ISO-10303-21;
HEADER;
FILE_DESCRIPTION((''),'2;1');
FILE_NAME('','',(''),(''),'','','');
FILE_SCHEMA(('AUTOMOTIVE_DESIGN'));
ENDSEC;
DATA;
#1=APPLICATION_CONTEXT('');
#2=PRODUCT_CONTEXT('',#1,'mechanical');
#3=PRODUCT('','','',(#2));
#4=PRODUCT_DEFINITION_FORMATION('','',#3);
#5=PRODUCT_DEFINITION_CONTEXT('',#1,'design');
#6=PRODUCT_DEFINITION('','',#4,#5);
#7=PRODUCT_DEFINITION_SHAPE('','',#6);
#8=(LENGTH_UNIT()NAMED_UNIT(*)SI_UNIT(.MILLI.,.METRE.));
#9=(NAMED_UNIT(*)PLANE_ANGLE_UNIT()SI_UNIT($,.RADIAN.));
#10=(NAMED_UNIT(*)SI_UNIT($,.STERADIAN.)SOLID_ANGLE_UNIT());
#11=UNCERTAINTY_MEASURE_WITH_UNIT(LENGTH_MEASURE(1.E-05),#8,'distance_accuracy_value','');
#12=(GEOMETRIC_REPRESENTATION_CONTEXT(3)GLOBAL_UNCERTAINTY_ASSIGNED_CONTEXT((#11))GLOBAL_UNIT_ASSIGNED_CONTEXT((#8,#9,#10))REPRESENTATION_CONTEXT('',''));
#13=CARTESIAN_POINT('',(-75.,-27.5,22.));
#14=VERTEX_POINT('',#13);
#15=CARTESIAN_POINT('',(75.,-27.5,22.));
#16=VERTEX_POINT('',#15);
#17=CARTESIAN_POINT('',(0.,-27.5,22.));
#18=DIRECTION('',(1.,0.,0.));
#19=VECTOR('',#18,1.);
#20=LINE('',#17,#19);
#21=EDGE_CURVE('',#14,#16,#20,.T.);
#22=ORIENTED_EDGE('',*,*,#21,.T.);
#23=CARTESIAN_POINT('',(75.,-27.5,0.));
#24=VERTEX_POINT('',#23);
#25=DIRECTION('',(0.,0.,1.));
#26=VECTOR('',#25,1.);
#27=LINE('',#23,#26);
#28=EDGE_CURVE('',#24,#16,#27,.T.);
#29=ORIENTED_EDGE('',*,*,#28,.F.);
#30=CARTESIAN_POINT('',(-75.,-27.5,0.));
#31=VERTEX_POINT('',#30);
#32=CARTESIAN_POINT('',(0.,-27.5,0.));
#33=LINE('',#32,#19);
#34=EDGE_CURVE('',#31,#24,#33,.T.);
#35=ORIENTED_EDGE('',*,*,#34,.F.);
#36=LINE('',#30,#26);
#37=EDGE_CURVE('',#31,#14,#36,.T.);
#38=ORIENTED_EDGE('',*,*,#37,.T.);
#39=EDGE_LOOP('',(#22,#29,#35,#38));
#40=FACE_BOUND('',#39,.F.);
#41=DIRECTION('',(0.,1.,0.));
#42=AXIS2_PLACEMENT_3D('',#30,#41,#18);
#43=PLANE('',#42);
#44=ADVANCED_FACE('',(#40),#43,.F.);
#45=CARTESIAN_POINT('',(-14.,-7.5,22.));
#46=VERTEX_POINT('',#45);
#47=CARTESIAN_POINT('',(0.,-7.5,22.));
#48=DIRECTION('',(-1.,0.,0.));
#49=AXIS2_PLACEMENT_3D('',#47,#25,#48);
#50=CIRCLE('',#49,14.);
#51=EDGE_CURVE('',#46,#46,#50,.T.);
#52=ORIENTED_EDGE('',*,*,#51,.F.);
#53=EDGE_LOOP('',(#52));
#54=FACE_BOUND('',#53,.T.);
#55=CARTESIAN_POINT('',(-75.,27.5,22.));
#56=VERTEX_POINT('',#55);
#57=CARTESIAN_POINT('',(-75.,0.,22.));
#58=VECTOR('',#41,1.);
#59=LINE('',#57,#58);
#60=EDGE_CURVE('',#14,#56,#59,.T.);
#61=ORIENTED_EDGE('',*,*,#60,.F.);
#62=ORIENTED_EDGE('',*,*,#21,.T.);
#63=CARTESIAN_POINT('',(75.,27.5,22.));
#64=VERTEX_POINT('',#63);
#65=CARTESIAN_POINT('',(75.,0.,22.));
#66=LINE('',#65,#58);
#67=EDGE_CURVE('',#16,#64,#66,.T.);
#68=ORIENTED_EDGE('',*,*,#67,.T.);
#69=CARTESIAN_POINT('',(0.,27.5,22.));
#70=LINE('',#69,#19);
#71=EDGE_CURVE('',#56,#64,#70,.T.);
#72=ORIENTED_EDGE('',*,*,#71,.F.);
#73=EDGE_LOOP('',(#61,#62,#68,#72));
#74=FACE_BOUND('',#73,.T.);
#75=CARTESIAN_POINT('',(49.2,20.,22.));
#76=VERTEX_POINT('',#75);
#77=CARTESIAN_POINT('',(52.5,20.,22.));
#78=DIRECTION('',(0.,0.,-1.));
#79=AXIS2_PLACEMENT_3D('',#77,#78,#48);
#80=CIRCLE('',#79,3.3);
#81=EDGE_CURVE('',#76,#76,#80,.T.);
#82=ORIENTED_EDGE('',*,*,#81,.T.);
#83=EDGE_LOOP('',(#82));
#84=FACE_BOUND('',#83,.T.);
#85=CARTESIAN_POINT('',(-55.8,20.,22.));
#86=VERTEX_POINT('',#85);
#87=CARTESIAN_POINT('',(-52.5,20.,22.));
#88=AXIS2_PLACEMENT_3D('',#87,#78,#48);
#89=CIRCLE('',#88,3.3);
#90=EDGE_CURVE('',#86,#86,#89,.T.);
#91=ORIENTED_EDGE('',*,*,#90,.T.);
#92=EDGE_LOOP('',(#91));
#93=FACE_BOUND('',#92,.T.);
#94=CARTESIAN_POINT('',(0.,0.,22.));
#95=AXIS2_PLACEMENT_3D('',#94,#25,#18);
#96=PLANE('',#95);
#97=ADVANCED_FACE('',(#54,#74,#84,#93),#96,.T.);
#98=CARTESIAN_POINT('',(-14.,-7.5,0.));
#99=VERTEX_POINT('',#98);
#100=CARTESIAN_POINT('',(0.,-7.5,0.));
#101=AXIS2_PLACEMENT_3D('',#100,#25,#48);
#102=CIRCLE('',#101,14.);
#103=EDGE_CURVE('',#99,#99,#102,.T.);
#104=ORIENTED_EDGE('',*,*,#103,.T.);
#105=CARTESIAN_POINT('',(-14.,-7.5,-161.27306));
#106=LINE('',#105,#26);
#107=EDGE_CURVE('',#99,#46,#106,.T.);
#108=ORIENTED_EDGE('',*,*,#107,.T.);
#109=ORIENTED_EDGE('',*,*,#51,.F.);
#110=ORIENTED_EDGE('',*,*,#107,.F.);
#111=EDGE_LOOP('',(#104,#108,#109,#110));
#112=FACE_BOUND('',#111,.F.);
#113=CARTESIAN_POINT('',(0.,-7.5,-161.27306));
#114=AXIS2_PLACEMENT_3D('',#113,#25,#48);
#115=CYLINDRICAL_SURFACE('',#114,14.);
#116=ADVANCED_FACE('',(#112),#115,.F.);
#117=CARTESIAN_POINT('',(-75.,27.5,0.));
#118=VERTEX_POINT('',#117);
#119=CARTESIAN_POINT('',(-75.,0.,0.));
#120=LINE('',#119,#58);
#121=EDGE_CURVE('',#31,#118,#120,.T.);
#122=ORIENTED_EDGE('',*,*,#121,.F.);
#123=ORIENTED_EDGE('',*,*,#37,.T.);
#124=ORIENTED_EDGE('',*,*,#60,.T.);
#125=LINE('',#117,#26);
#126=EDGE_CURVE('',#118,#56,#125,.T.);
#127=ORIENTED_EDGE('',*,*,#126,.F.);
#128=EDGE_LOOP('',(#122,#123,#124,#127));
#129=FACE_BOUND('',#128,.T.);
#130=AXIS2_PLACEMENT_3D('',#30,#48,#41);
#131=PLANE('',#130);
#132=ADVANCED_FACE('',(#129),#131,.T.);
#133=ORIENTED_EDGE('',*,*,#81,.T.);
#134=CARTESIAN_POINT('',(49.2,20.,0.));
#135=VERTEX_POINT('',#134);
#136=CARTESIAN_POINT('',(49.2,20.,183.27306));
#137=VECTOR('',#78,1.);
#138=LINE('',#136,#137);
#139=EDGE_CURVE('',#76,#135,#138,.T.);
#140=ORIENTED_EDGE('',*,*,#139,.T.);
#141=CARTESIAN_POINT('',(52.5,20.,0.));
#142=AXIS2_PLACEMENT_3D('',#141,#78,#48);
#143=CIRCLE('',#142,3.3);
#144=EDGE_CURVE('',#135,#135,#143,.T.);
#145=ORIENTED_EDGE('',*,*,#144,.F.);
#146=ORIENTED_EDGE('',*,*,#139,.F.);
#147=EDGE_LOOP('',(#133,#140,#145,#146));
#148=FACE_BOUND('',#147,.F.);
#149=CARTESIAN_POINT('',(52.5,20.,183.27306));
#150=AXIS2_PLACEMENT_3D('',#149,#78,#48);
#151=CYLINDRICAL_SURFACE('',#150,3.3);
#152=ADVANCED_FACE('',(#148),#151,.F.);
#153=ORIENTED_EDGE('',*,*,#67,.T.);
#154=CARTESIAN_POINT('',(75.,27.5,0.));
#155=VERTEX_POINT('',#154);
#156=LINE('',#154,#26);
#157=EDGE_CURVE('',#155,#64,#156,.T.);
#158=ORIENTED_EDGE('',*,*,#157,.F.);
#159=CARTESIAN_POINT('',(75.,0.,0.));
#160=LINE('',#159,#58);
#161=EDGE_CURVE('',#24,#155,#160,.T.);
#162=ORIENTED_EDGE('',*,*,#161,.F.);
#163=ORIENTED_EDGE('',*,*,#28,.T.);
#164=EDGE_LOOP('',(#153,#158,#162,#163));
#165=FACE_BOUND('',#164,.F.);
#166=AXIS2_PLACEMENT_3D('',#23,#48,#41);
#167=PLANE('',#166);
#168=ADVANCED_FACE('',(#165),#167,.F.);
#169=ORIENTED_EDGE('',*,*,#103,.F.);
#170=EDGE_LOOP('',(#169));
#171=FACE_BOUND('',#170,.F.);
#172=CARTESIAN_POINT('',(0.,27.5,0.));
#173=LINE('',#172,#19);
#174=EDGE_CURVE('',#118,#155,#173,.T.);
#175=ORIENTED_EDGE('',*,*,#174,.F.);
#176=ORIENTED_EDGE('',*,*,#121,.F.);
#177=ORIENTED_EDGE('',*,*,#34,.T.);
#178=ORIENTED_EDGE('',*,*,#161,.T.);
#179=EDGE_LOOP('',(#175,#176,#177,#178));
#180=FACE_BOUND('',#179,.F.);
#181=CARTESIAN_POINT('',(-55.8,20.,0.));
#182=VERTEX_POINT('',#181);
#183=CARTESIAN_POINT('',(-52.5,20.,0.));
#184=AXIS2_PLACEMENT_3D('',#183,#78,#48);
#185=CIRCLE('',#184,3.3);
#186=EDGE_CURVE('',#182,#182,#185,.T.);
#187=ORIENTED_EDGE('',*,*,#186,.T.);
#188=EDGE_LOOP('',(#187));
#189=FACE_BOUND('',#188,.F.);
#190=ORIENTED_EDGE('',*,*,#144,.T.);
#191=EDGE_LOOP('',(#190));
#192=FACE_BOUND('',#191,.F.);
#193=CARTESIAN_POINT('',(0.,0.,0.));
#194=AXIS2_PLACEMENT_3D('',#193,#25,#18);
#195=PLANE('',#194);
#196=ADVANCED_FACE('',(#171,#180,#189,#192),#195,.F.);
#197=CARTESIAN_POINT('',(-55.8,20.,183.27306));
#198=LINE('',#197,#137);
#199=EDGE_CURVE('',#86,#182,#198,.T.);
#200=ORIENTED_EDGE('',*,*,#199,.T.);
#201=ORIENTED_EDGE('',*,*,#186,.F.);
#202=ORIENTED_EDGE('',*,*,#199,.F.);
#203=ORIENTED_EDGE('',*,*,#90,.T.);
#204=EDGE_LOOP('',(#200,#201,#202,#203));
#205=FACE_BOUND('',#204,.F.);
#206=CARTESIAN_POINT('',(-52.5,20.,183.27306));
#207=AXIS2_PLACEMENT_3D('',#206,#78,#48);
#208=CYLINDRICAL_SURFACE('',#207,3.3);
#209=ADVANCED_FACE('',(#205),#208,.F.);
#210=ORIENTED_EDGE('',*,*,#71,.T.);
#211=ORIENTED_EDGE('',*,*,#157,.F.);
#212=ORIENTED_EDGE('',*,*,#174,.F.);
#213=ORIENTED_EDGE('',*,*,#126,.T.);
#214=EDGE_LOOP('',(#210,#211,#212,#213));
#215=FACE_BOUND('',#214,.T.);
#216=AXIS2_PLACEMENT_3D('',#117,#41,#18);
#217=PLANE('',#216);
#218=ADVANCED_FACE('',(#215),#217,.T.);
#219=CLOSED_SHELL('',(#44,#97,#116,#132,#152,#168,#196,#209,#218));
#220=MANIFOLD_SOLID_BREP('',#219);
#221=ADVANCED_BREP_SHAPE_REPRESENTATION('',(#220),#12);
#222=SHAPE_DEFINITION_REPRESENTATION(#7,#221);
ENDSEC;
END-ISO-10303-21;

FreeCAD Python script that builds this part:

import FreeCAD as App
import Part
import Sketcher


def add_polygon(sketch, points):
    """Adds a closed chain of lines whose ends are joined by coincident constraints."""
    first, n = sketch.GeometryCount, len(points)
    for a, b in zip(points, points[1:] + points[:1]):
        sketch.addGeometry(Part.LineSegment(App.Vector(*a, 0), App.Vector(*b, 0)), False)
    for i in range(n):
        sketch.addConstraint(Sketcher.Constraint("Coincident", first + i, 2, first + (i + 1) % n, 1))

doc = App.newDocument("Part")
body = doc.addObject("PartDesign::Body", "Body")

sketch1 = body.newObject("Sketcher::SketchObject", "Sketch")
sketch1.AttachmentSupport = (doc.getObject("XY_Plane"), [""])
sketch1.MapMode = "FlatFace"
add_polygon(sketch1, [(-75, 28), (-75, -28), (75, -28), (75, 28)])
sketch1.addConstraint([
    Sketcher.Constraint("Vertical", 0),
    Sketcher.Constraint("Horizontal", 1),
    Sketcher.Constraint("Vertical", 2),
    Sketcher.Constraint("Horizontal", 3),
    Sketcher.Constraint("Symmetric", 0, 2, 2, 2, -1, 1),
    Sketcher.Constraint("DistanceX", 1, 1, 1, 2, 150.0),
    Sketcher.Constraint("DistanceY", 0, 2, 0, 1, 55.0),
])
pad1 = body.newObject("PartDesign::Pad", "Pad")
pad1.Profile = sketch1
pad1.Length = 22

sketch2 = body.newObject("Sketcher::SketchObject", "Sketch001")
sketch2.AttachmentSupport = (doc.getObject("XY_Plane"), [""])
sketch2.MapMode = "FlatFace"
sketch2.AttachmentOffset = App.Placement(App.Vector(0, 0, 22), App.Rotation())
sketch2.addGeometry([
    Part.Circle(App.Vector(-52.5, 20, 0), App.Vector(0, 0, 1), 3.3),
    Part.Circle(App.Vector(52.5, 20, 0), App.Vector(0, 0, 1), 3.3),
], False)
sketch2.addConstraint([
    Sketcher.Constraint("Equal", 0, 1),
    Sketcher.Constraint("Symmetric", 0, 3, 1, 3, -2),
    Sketcher.Constraint("Diameter", 0, 6.6),
    Sketcher.Constraint("DistanceY", -1, 1, 0, 3, 20.0),
    Sketcher.Constraint("DistanceX", 0, 3, 1, 3, 105.0),
])
doc.recompute()
hole = body.newObject("PartDesign::Hole", "Hole")
hole.Profile = sketch2
hole.ThreadType = "None"
hole.Diameter = 6.6
hole.DepthType = "ThroughAll"

sketch3 = body.newObject("Sketcher::SketchObject", "Sketch002")
sketch3.AttachmentSupport = (doc.getObject("XY_Plane"), [""])
sketch3.MapMode = "FlatFace"
sketch3.addGeometry(Part.Circle(App.Vector(0, -8, 0), App.Vector(0, 0, 1), 14), False)
sketch3.addConstraint([
    Sketcher.Constraint("PointOnObject", 0, 3, -2),
    Sketcher.Constraint("Diameter", 0, 28.0),
    Sketcher.Constraint("DistanceY", 0, 3, -1, 1, 7.5),
])
doc.recompute()
hole2 = body.newObject("PartDesign::Hole", "Hole001")
hole2.Profile = sketch3
hole2.ThreadType = "None"
hole2.Diameter = 28
hole2.DepthType = "ThroughAll"
hole2.Reversed = True

doc.recompute()
